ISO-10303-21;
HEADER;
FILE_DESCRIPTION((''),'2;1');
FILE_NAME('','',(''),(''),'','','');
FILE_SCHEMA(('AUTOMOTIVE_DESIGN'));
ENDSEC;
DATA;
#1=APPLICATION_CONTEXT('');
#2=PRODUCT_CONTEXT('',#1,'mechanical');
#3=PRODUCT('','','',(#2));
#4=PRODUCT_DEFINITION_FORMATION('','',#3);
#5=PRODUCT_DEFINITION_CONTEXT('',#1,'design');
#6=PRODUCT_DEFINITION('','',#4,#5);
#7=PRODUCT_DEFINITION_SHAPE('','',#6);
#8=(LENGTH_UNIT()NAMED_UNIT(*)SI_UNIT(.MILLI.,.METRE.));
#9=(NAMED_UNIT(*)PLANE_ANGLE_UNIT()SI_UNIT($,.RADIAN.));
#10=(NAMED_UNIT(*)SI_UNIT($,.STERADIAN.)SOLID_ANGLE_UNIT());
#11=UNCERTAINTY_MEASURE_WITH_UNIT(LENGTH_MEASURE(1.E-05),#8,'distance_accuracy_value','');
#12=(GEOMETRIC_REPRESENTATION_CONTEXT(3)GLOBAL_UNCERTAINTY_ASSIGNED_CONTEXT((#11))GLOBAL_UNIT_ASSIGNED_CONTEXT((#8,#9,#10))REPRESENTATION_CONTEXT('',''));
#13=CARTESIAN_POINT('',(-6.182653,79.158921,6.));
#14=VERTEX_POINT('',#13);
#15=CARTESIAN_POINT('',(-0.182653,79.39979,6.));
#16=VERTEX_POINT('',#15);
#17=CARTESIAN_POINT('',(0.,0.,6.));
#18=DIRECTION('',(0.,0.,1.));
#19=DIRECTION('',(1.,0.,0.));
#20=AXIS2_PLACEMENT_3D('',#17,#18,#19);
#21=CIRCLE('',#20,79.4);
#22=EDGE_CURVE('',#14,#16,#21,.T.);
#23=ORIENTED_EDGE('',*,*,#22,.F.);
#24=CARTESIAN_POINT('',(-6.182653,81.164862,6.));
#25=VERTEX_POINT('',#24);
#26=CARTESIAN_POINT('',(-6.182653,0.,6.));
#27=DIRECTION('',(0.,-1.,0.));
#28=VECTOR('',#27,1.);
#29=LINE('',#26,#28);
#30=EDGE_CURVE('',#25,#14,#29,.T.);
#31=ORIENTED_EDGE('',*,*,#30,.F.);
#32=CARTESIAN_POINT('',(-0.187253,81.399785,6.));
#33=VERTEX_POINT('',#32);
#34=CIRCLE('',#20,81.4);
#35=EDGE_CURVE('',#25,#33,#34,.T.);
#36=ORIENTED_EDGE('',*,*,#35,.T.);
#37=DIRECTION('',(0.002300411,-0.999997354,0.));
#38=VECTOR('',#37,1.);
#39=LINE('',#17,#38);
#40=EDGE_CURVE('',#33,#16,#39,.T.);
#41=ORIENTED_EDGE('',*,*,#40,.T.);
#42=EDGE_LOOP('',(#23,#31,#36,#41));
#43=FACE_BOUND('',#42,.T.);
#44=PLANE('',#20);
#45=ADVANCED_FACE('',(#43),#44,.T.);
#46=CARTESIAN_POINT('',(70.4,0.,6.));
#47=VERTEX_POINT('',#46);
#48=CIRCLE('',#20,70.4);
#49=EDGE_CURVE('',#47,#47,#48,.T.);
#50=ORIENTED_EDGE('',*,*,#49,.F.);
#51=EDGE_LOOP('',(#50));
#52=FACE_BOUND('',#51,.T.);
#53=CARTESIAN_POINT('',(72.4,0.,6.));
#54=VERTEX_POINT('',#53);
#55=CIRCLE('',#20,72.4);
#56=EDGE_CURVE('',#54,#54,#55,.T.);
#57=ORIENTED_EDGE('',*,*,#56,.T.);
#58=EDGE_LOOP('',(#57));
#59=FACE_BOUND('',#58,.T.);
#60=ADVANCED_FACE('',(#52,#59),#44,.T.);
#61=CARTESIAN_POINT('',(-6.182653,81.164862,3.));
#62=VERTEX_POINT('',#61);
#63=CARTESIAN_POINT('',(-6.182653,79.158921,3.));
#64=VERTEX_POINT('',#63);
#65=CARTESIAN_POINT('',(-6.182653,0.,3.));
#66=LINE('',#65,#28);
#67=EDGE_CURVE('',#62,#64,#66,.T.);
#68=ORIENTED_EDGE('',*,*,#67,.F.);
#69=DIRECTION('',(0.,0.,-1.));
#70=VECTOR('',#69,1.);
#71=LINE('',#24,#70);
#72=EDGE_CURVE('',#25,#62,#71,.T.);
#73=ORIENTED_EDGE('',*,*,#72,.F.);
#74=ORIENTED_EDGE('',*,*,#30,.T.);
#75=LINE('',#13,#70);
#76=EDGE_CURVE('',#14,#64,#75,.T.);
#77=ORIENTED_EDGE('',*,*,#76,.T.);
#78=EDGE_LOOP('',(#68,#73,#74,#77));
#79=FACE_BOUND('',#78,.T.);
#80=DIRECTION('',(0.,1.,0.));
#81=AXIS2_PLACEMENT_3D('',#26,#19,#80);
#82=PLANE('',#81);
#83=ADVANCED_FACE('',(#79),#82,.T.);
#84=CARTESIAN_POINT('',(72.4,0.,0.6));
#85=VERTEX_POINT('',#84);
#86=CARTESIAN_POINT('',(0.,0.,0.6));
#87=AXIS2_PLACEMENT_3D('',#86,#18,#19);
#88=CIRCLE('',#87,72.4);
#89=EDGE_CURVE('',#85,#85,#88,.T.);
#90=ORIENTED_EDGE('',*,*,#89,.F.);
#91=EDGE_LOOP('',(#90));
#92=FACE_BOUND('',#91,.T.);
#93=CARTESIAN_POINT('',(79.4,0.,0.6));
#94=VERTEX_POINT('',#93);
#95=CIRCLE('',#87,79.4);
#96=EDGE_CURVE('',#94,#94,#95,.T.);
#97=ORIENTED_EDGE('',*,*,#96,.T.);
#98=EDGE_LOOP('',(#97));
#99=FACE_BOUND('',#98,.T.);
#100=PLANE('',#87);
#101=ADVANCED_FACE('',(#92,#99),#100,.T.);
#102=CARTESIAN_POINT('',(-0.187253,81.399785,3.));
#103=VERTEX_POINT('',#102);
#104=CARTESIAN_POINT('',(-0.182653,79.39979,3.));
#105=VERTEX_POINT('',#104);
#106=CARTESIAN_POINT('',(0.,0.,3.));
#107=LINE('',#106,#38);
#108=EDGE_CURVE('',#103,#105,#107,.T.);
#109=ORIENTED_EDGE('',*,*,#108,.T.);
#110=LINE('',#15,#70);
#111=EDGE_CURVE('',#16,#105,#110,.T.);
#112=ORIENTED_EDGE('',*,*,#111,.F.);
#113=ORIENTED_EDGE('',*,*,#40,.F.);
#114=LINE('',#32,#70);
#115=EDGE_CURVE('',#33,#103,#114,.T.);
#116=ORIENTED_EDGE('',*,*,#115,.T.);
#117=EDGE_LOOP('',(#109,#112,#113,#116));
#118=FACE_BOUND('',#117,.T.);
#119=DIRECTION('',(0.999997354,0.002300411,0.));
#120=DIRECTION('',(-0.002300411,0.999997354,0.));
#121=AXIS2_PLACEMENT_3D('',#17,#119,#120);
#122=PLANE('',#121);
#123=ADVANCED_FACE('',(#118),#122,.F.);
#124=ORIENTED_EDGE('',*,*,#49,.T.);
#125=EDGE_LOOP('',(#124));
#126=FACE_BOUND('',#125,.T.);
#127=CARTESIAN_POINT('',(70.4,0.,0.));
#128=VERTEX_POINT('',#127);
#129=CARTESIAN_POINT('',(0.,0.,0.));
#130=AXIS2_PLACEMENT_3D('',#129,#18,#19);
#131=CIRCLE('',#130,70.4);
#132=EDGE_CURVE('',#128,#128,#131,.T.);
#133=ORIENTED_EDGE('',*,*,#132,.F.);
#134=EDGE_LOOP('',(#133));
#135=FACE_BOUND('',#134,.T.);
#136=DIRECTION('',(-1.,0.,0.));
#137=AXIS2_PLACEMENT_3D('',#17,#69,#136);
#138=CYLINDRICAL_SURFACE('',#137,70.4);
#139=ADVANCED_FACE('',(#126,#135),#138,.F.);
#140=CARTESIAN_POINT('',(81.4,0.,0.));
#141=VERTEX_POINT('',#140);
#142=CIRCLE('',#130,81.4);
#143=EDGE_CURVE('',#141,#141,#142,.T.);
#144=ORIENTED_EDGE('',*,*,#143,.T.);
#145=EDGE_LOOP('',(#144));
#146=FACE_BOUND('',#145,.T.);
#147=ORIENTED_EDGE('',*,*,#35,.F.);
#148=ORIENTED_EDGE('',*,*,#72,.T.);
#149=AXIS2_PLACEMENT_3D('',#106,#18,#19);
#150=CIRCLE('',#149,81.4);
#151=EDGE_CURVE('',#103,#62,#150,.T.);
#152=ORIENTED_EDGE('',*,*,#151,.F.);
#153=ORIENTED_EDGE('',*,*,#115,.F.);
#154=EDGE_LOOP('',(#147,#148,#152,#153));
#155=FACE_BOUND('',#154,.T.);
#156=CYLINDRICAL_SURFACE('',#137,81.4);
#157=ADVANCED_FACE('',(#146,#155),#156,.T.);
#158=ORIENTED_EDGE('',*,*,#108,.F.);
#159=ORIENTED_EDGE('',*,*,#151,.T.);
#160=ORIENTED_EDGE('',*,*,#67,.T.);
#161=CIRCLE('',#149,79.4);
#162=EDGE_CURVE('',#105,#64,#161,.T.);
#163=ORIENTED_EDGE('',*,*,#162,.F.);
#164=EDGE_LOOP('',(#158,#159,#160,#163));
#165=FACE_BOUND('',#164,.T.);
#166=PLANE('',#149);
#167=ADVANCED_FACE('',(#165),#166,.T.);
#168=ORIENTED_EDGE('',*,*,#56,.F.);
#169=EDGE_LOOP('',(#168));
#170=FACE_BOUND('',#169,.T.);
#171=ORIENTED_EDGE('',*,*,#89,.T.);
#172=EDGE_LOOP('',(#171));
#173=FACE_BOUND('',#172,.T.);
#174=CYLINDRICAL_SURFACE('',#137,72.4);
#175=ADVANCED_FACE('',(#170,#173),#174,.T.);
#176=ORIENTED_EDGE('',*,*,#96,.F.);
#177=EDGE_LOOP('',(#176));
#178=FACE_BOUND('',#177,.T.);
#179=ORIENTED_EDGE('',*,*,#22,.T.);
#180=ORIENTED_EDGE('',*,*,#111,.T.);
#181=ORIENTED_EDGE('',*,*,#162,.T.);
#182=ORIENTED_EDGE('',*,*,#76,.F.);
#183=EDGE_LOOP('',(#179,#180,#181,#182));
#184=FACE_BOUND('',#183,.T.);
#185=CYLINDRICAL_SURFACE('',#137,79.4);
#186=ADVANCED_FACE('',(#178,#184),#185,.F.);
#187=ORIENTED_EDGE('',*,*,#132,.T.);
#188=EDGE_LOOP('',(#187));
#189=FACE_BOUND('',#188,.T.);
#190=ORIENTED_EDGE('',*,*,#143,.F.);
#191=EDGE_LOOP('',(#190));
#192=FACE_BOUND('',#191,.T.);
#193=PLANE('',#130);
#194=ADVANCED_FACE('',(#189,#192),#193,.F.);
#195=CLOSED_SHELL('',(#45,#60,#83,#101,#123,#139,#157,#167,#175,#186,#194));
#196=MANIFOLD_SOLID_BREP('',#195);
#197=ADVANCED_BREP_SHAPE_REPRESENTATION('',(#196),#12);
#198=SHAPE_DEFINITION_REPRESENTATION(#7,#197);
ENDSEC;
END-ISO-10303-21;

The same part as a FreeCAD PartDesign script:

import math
import FreeCAD as App
import Part
import Sketcher
from FreeCAD import Vector
Q = App.Units.Quantity

doc = App.newDocument("Part")
body = doc.addObject("PartDesign::Body", "Body")

sketch1 = body.newObject("Sketcher::SketchObject", "Sketch")
sketch1.AttachmentSupport = (doc.getObject("XY_Plane"), [""])
sketch1.MapMode = "FlatFace"
sketch1.addGeometry([
    Part.Circle(Vector(0, 0, 0), Vector(0, 0, 1), 79.4),
    Part.Circle(Vector(0, 0, 0), Vector(0, 0, 1), 72.4),
], False)
sketch1.addConstraint([
    Sketcher.Constraint("Coincident", 0, 3, -1, 1),
    Sketcher.Constraint("Coincident", 1, 3, -1, 1),
    Sketcher.Constraint("Diameter", 0, Q("158.8 mm")),
    Sketcher.Constraint("Diameter", 1, Q("144.8 mm")),
])
pad1 = body.newObject("PartDesign::Pad", "Pad")
pad1.Profile = sketch1
pad1.Length = 0.6

sketch2 = body.newObject("Sketcher::SketchObject", "Sketch001")
sketch2.AttachmentSupport = (doc.getObject("XY_Plane"), [""])
sketch2.MapMode = "FlatFace"
sketch2.addGeometry([
    Part.LineSegment(Vector(-6.182653, 79.158921, 0), Vector(-6.182653, 81.164862, 0)),
    Part.ArcOfCircle(Part.Circle(Vector(0, 0, 0), Vector(0, 0, 1), 81.4), math.radians(94.356037), math.radians(450.131804)),
    Part.LineSegment(Vector(-0.187253, 81.399785, 0), Vector(-0.182653, 79.39979, 0)),
    Part.ArcOfCircle(Part.Circle(Vector(0, 0, 0), Vector(0, 0, 1), 79.4), math.radians(94.465981), math.radians(450.131804)),
    Part.Circle(Vector(0, 0, 0), Vector(0, 0, 1), 72.4),
    Part.Circle(Vector(0, 0, 0), Vector(0, 0, 1), 70.4),
], False)
sketch2.addConstraint([
    Sketcher.Constraint("Coincident", 0, 2, 1, 1),
    Sketcher.Constraint("Coincident", 1, 2, 2, 1),
    Sketcher.Constraint("Coincident", 2, 2, 3, 2),
    Sketcher.Constraint("Coincident", 3, 1, 0, 1),
    Sketcher.Constraint("Vertical", 0),
    Sketcher.Constraint("Coincident", 1, 3, -1, 1),
    Sketcher.Constraint("Coincident", 3, 3, -1, 1),
    Sketcher.Constraint("Coincident", 4, 3, -1, 1),
    Sketcher.Constraint("Coincident", 5, 3, -1, 1),
    Sketcher.Constraint("Diameter", 4, Q("144.8 mm")),
    Sketcher.Constraint("Diameter", 5, Q("140.8 mm")),
    Sketcher.Constraint("Radius", 1, Q("81.4 mm")),
    Sketcher.Constraint("Radius", 3, Q("79.4 mm")),
    Sketcher.Constraint("DistanceX", 0, 2, 2, 2, Q("6 mm")),
    Sketcher.Constraint("DistanceX", 0, 2, 1, 2, Q("5.995399 mm")),
    Sketcher.Constraint("DistanceY", -1, 1, 0, 2, Q("81.164862 mm")),
])
pad2 = body.newObject("PartDesign::Pad", "Pad001")
pad2.Profile = sketch2
pad2.Length = 6

sketch3 = body.newObject("Sketcher::SketchObject", "Sketch002")
sketch3.AttachmentSupport = (doc.getObject("XY_Plane"), [""])
sketch3.MapMode = "FlatFace"
sketch3.addGeometry([
    Part.ArcOfCircle(Part.Circle(Vector(0, 0, 0), Vector(0, 0, 1), 81.4), math.radians(90.131804), math.radians(94.356037)),
    Part.ArcOfCircle(Part.Circle(Vector(0, 0, 0), Vector(0, 0, 1), 81.4), math.radians(94.356037), math.radians(360)),
    Part.ArcOfCircle(Part.Circle(Vector(0, 0, 0), Vector(0, 0, 1), 81.4), math.radians(0), math.radians(90.131804)),
    Part.ArcOfCircle(Part.Circle(Vector(0, 0, 0), Vector(0, 0, 1), 79.4), math.radians(90.131804), math.radians(94.465981)),
    Part.ArcOfCircle(Part.Circle(Vector(0, 0, 0), Vector(0, 0, 1), 79.4), math.radians(0), math.radians(90.131804)),
    Part.ArcOfCircle(Part.Circle(Vector(0, 0, 0), Vector(0, 0, 1), 79.4), math.radians(94.465981), math.radians(360)),
], False)
sketch3.addConstraint([
    Sketcher.Constraint("Tangent", 0, 2, 1, 1),
    Sketcher.Constraint("Tangent", 1, 2, 2, 1),
    Sketcher.Constraint("Coincident", 2, 2, 0, 1),
    Sketcher.Constraint("Tangent", 3, 1, 4, 2),
    Sketcher.Constraint("Tangent", 4, 1, 5, 2),
    Sketcher.Constraint("Coincident", 5, 1, 3, 2),
    Sketcher.Constraint("Coincident", 0, 3, -1, 1),
    Sketcher.Constraint("Coincident", 3, 3, -1, 1),
    Sketcher.Constraint("Equal", 0, 1),
    Sketcher.Constraint("Equal", 3, 4),
    Sketcher.Constraint("PointOnObject", 1, 2, -1),
    Sketcher.Constraint("PointOnObject", 4, 1, -1),
    Sketcher.Constraint("Vertical", 0, 2, 5, 1),
    Sketcher.Constraint("Radius", 0, Q("81.4 mm")),
    Sketcher.Constraint("Radius", 3, Q("79.4 mm")),
    Sketcher.Constraint("DistanceX", 0, 2, 3, 1, Q("6 mm")),
    Sketcher.Constraint("DistanceX", 0, 2, 2, 2, Q("5.995399 mm")),
    Sketcher.Constraint("DistanceY", -1, 1, 0, 2, Q("81.164862 mm")),
])
pad3 = body.newObject("PartDesign::Pad", "Pad002")
pad3.Profile = sketch3
pad3.Length = 3

doc.recompute()
